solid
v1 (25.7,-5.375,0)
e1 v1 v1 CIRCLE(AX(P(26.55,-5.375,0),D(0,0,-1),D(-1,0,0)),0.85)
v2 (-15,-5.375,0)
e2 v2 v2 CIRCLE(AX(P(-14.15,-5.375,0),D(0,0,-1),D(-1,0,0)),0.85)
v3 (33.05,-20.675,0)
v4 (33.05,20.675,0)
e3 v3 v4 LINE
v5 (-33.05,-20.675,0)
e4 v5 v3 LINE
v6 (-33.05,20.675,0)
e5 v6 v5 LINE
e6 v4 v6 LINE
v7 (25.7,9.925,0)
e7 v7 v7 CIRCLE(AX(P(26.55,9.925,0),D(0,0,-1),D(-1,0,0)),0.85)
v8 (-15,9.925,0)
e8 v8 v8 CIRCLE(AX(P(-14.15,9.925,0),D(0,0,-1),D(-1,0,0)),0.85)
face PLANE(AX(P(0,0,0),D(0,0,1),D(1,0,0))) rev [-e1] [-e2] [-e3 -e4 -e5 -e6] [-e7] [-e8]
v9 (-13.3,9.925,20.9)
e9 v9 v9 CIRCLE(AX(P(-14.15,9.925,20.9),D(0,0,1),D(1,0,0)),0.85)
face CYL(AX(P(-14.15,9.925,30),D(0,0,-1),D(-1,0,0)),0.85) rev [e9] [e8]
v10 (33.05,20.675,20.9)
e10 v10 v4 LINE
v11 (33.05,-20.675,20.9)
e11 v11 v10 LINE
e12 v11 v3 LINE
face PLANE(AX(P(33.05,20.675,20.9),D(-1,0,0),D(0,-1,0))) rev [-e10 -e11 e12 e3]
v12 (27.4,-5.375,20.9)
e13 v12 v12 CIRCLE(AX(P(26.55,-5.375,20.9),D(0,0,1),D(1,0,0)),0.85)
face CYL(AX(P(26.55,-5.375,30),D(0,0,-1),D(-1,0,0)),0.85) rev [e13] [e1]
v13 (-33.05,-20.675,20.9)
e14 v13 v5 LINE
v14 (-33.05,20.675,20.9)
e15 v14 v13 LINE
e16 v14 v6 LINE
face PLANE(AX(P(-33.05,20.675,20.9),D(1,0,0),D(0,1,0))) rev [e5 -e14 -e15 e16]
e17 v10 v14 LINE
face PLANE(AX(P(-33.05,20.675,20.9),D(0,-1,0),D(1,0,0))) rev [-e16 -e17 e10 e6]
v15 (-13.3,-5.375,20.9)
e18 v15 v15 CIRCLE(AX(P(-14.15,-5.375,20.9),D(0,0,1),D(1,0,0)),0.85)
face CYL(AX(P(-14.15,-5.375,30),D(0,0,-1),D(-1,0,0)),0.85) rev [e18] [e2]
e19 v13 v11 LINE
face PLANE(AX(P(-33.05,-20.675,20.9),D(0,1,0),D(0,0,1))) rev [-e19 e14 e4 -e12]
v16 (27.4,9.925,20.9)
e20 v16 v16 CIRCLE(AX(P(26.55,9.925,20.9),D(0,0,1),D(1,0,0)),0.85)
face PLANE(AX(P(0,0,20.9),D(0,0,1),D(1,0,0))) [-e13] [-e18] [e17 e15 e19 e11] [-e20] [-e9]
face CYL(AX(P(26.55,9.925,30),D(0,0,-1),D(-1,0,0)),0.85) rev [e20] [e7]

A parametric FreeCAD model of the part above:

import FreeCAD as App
import Part
import Sketcher


def add_polygon(sketch, points):
    """Adds a closed chain of lines whose ends are joined by coincident constraints."""
    first, n = sketch.GeometryCount, len(points)
    for a, b in zip(points, points[1:] + points[:1]):
        sketch.addGeometry(Part.LineSegment(App.Vector(*a, 0), App.Vector(*b, 0)), False)
    for i in range(n):
        sketch.addConstraint(Sketcher.Constraint("Coincident", first + i, 2, first + (i + 1) % n, 1))

doc = App.newDocument("Part")
params = doc.addObject("Spreadsheet::Sheet", "Params")
for row, (alias, value) in enumerate([
    ("sketch1_width", "66.1 mm"),
    ("sketch1_height", "41.35 mm"),
    ("pad1_length", "20.9 mm"),
    ("sketch2_diameter", "1.7 mm"),
    ("pocket1_length", "30 mm"),
], start=1):
    params.set(f"A{row}", alias)
    params.set(f"B{row}", "=" + value)
    params.setAlias(f"B{row}", alias)

body = doc.addObject("PartDesign::Body", "Body")

# Sketch on XY plane
sketch1 = body.newObject("Sketcher::SketchObject", "Sketch")
sketch1.AttachmentSupport = (doc.getObject("XY_Plane"), [""])
sketch1.MapMode = "FlatFace"
add_polygon(sketch1, [(-33, 21), (-33, -21), (33, -21), (33, 21)])  # lines 0-3
sketch1.addConstraint(Sketcher.Constraint("Vertical", 0))
sketch1.addConstraint(Sketcher.Constraint("Horizontal", 1))
sketch1.addConstraint(Sketcher.Constraint("Vertical", 2))
sketch1.addConstraint(Sketcher.Constraint("Horizontal", 3))
sketch1.addConstraint(Sketcher.Constraint("Symmetric", 0, 2, 2, 2, -1, 1))
sketch1.addConstraint(Sketcher.Constraint("DistanceX", 1, 1, 1, 2, 66.1))
sketch1.addConstraint(Sketcher.Constraint("DistanceY", 0, 2, 0, 1, 41.35))
sketch1.setExpression("Constraints[9]", "Params.sketch1_width")
sketch1.setExpression("Constraints[10]", "Params.sketch1_height")
pad1 = body.newObject("PartDesign::Pad", "Pad")
pad1.Profile = sketch1
pad1.setExpression("Length", "Params.pad1_length")

# Sketch on XY plane
sketch2 = body.newObject("Sketcher::SketchObject", "Sketch001")
sketch2.AttachmentSupport = (doc.getObject("XY_Plane"), [""])
sketch2.MapMode = "FlatFace"
sketch2.addGeometry(Part.Circle(App.Vector(26.6, 9.9, 0), App.Vector(0, 0, 1), 0.8), False)
sketch2.addGeometry(Part.Circle(App.Vector(26.6, -5.4, 0), App.Vector(0, 0, 1), 0.8), False)
sketch2.addGeometry(Part.Circle(App.Vector(-14.2, 9.9, 0), App.Vector(0, 0, 1), 0.8), False)
sketch2.addGeometry(Part.Circle(App.Vector(-14.2, -5.4, 0), App.Vector(0, 0, 1), 0.8), False)
sketch2.addConstraint(Sketcher.Constraint("Equal", 0, 1))
sketch2.addConstraint(Sketcher.Constraint("Equal", 1, 2))
sketch2.addConstraint(Sketcher.Constraint("Equal", 2, 3))
sketch2.addConstraint(Sketcher.Constraint("Horizontal", 0, 3, 2, 3))
sketch2.addConstraint(Sketcher.Constraint("Horizontal", 1, 3, 3, 3))
sketch2.addConstraint(Sketcher.Constraint("Vertical", 0, 3, 1, 3))
sketch2.addConstraint(Sketcher.Constraint("Vertical", 2, 3, 3, 3))
sketch2.addConstraint(Sketcher.Constraint("Diameter", 0, 1.7))
sketch2.addConstraint(Sketcher.Constraint("DistanceY", 1, 3, 0, 3, 15.3))
sketch2.addConstraint(Sketcher.Constraint("DistanceX", 2, 3, 0, 3, 40.7))
sketch2.addConstraint(Sketcher.Constraint("DistanceX", -1, 1, 0, 3, 26.55))
sketch2.addConstraint(Sketcher.Constraint("DistanceY", -1, 1, 0, 3, 9.925))
sketch2.setExpression("Constraints[7]", "Params.sketch2_diameter")
pocket1 = body.newObject("PartDesign::Pocket", "Pocket")
pocket1.Profile = sketch2
pocket1.setExpression("Length", "Params.pocket1_length")
pocket1.Reversed = True

doc.recompute()
